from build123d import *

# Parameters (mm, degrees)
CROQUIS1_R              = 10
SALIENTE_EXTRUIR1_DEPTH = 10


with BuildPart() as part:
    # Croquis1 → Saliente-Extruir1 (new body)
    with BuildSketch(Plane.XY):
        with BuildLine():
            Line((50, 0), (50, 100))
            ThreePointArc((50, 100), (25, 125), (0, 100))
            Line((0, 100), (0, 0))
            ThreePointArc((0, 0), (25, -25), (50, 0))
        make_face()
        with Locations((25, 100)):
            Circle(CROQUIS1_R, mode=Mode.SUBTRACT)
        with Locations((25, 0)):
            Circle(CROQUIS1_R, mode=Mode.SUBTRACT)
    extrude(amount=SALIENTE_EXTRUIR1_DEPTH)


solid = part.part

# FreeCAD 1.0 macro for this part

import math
import FreeCAD as App
import Part
import Sketcher
from FreeCAD import Vector

doc = App.newDocument("Part")
body = doc.addObject("PartDesign::Body", "Body")

sketch1 = body.newObject("Sketcher::SketchObject", "Sketch")
sketch1.AttachmentSupport = (doc.getObject("XY_Plane"), [""])
sketch1.MapMode = "FlatFace"
sketch1.addGeometry([
    Part.LineSegment(Vector(50, 0, 0), Vector(50, 100, 0)),
    Part.ArcOfCircle(Part.Circle(Vector(25, 100, 0), Vector(0, 0, 1), 25), math.radians(0), math.radians(180)),
    Part.LineSegment(Vector(0, 100, 0), Vector(0, 0, 0)),
    Part.ArcOfCircle(Part.Circle(Vector(25, 0, 0), Vector(0, 0, 1), 25), math.radians(180), math.radians(360)),
    Part.Circle(Vector(25, 0, 0), Vector(0, 0, 1), 10),
    Part.Circle(Vector(25, 100, 0), Vector(0, 0, 1), 10),
], False)
sketch1.addConstraint([
    Sketcher.Constraint("Tangent", 0, 2, 1, 1),
    Sketcher.Constraint("Tangent", 1, 2, 2, 1),
    Sketcher.Constraint("Tangent", 2, 2, 3, 1),
    Sketcher.Constraint("Tangent", 3, 2, 0, 1),
    Sketcher.Constraint("Vertical", 0),
    Sketcher.Constraint("Vertical", 2),
    Sketcher.Constraint("Coincident", 2, 2, -1, 1),
    Sketcher.Constraint("Coincident", 4, 3, 3, 3),
    Sketcher.Constraint("Coincident", 5, 3, 1, 3),
    Sketcher.Constraint("Equal", 4, 5),
    Sketcher.Constraint("Diameter", 4, 20.0),
    Sketcher.Constraint("Radius", 1, 25.0),
    Sketcher.Constraint("DistanceY", 0, 1, 0, 2, 100.0),
])
pad1 = body.newObject("PartDesign::Pad", "Pad")
pad1.Profile = sketch1
pad1.Length = 10

doc.recompute()
